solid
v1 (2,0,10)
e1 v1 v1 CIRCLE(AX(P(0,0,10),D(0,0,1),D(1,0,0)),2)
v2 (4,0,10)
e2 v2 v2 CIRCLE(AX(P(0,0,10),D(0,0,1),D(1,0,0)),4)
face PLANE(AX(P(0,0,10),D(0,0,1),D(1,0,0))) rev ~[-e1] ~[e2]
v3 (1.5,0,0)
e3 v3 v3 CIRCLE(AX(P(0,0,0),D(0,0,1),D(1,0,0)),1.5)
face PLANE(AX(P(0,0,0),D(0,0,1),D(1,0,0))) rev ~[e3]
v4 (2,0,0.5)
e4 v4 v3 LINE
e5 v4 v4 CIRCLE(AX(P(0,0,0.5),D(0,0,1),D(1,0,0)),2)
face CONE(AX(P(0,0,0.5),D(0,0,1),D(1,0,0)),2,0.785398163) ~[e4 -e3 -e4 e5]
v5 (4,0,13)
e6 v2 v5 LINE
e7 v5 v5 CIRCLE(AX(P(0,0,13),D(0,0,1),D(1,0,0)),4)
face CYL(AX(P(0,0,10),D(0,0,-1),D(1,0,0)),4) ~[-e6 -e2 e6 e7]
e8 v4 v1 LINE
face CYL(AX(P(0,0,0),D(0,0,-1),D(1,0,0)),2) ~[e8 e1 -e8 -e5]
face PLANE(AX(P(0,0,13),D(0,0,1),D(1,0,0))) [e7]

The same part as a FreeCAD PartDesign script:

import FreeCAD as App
import Part
import Sketcher

V = App.Vector


def edges_at(feature, points):
    """Names of the edges that pass closest to the given points."""
    edges = feature.Shape.Edges
    near = lambda p: min(range(len(edges)), key=lambda i: edges[i].distToShape(Part.Vertex(*p))[0])
    return sorted({f"Edge{near(p) + 1}" for p in points})

doc = App.newDocument("Part")
body = doc.addObject("PartDesign::Body", "Body")

# Sketch on XY plane
sketch1 = body.newObject("Sketcher::SketchObject", "Sketch")
sketch1.AttachmentSupport = (doc.getObject("XY_Plane"), [""])
sketch1.MapMode = "FlatFace"
sketch1.addGeometry(Part.Circle(V(0, 0, 0), V(0, 0, 1), 2), False)
sketch1.addConstraint([
    Sketcher.Constraint("Coincident", 0, 3, -1, 1),
    Sketcher.Constraint("Diameter", 0, 4.0),
])
pad1 = body.newObject("PartDesign::Pad", "Pad")
pad1.Profile = sketch1
pad1.Length = 10

# Sketch on XY plane
sketch2 = body.newObject("Sketcher::SketchObject", "Sketch001")
sketch2.AttachmentSupport = (doc.getObject("XY_Plane"), [""])
sketch2.MapMode = "FlatFace"
sketch2.AttachmentOffset = App.Placement(V(0, 0, 10), App.Rotation())
sketch2.addGeometry(Part.Circle(V(0, 0, 0), V(0, 0, 1), 4), False)
sketch2.addConstraint([
    Sketcher.Constraint("Coincident", 0, 3, -1, 1),
    Sketcher.Constraint("Diameter", 0, 8.0),
])
pad2 = body.newObject("PartDesign::Pad", "Pad001")
pad2.Profile = sketch2
pad2.Length = 3
doc.recompute()

chamfer = body.newObject("PartDesign::Chamfer", "Chamfer")
chamfer.Base = (pad2, edges_at(pad2, [(-2, 0, 0)]))
chamfer.Size = 0.5

doc.recompute()
